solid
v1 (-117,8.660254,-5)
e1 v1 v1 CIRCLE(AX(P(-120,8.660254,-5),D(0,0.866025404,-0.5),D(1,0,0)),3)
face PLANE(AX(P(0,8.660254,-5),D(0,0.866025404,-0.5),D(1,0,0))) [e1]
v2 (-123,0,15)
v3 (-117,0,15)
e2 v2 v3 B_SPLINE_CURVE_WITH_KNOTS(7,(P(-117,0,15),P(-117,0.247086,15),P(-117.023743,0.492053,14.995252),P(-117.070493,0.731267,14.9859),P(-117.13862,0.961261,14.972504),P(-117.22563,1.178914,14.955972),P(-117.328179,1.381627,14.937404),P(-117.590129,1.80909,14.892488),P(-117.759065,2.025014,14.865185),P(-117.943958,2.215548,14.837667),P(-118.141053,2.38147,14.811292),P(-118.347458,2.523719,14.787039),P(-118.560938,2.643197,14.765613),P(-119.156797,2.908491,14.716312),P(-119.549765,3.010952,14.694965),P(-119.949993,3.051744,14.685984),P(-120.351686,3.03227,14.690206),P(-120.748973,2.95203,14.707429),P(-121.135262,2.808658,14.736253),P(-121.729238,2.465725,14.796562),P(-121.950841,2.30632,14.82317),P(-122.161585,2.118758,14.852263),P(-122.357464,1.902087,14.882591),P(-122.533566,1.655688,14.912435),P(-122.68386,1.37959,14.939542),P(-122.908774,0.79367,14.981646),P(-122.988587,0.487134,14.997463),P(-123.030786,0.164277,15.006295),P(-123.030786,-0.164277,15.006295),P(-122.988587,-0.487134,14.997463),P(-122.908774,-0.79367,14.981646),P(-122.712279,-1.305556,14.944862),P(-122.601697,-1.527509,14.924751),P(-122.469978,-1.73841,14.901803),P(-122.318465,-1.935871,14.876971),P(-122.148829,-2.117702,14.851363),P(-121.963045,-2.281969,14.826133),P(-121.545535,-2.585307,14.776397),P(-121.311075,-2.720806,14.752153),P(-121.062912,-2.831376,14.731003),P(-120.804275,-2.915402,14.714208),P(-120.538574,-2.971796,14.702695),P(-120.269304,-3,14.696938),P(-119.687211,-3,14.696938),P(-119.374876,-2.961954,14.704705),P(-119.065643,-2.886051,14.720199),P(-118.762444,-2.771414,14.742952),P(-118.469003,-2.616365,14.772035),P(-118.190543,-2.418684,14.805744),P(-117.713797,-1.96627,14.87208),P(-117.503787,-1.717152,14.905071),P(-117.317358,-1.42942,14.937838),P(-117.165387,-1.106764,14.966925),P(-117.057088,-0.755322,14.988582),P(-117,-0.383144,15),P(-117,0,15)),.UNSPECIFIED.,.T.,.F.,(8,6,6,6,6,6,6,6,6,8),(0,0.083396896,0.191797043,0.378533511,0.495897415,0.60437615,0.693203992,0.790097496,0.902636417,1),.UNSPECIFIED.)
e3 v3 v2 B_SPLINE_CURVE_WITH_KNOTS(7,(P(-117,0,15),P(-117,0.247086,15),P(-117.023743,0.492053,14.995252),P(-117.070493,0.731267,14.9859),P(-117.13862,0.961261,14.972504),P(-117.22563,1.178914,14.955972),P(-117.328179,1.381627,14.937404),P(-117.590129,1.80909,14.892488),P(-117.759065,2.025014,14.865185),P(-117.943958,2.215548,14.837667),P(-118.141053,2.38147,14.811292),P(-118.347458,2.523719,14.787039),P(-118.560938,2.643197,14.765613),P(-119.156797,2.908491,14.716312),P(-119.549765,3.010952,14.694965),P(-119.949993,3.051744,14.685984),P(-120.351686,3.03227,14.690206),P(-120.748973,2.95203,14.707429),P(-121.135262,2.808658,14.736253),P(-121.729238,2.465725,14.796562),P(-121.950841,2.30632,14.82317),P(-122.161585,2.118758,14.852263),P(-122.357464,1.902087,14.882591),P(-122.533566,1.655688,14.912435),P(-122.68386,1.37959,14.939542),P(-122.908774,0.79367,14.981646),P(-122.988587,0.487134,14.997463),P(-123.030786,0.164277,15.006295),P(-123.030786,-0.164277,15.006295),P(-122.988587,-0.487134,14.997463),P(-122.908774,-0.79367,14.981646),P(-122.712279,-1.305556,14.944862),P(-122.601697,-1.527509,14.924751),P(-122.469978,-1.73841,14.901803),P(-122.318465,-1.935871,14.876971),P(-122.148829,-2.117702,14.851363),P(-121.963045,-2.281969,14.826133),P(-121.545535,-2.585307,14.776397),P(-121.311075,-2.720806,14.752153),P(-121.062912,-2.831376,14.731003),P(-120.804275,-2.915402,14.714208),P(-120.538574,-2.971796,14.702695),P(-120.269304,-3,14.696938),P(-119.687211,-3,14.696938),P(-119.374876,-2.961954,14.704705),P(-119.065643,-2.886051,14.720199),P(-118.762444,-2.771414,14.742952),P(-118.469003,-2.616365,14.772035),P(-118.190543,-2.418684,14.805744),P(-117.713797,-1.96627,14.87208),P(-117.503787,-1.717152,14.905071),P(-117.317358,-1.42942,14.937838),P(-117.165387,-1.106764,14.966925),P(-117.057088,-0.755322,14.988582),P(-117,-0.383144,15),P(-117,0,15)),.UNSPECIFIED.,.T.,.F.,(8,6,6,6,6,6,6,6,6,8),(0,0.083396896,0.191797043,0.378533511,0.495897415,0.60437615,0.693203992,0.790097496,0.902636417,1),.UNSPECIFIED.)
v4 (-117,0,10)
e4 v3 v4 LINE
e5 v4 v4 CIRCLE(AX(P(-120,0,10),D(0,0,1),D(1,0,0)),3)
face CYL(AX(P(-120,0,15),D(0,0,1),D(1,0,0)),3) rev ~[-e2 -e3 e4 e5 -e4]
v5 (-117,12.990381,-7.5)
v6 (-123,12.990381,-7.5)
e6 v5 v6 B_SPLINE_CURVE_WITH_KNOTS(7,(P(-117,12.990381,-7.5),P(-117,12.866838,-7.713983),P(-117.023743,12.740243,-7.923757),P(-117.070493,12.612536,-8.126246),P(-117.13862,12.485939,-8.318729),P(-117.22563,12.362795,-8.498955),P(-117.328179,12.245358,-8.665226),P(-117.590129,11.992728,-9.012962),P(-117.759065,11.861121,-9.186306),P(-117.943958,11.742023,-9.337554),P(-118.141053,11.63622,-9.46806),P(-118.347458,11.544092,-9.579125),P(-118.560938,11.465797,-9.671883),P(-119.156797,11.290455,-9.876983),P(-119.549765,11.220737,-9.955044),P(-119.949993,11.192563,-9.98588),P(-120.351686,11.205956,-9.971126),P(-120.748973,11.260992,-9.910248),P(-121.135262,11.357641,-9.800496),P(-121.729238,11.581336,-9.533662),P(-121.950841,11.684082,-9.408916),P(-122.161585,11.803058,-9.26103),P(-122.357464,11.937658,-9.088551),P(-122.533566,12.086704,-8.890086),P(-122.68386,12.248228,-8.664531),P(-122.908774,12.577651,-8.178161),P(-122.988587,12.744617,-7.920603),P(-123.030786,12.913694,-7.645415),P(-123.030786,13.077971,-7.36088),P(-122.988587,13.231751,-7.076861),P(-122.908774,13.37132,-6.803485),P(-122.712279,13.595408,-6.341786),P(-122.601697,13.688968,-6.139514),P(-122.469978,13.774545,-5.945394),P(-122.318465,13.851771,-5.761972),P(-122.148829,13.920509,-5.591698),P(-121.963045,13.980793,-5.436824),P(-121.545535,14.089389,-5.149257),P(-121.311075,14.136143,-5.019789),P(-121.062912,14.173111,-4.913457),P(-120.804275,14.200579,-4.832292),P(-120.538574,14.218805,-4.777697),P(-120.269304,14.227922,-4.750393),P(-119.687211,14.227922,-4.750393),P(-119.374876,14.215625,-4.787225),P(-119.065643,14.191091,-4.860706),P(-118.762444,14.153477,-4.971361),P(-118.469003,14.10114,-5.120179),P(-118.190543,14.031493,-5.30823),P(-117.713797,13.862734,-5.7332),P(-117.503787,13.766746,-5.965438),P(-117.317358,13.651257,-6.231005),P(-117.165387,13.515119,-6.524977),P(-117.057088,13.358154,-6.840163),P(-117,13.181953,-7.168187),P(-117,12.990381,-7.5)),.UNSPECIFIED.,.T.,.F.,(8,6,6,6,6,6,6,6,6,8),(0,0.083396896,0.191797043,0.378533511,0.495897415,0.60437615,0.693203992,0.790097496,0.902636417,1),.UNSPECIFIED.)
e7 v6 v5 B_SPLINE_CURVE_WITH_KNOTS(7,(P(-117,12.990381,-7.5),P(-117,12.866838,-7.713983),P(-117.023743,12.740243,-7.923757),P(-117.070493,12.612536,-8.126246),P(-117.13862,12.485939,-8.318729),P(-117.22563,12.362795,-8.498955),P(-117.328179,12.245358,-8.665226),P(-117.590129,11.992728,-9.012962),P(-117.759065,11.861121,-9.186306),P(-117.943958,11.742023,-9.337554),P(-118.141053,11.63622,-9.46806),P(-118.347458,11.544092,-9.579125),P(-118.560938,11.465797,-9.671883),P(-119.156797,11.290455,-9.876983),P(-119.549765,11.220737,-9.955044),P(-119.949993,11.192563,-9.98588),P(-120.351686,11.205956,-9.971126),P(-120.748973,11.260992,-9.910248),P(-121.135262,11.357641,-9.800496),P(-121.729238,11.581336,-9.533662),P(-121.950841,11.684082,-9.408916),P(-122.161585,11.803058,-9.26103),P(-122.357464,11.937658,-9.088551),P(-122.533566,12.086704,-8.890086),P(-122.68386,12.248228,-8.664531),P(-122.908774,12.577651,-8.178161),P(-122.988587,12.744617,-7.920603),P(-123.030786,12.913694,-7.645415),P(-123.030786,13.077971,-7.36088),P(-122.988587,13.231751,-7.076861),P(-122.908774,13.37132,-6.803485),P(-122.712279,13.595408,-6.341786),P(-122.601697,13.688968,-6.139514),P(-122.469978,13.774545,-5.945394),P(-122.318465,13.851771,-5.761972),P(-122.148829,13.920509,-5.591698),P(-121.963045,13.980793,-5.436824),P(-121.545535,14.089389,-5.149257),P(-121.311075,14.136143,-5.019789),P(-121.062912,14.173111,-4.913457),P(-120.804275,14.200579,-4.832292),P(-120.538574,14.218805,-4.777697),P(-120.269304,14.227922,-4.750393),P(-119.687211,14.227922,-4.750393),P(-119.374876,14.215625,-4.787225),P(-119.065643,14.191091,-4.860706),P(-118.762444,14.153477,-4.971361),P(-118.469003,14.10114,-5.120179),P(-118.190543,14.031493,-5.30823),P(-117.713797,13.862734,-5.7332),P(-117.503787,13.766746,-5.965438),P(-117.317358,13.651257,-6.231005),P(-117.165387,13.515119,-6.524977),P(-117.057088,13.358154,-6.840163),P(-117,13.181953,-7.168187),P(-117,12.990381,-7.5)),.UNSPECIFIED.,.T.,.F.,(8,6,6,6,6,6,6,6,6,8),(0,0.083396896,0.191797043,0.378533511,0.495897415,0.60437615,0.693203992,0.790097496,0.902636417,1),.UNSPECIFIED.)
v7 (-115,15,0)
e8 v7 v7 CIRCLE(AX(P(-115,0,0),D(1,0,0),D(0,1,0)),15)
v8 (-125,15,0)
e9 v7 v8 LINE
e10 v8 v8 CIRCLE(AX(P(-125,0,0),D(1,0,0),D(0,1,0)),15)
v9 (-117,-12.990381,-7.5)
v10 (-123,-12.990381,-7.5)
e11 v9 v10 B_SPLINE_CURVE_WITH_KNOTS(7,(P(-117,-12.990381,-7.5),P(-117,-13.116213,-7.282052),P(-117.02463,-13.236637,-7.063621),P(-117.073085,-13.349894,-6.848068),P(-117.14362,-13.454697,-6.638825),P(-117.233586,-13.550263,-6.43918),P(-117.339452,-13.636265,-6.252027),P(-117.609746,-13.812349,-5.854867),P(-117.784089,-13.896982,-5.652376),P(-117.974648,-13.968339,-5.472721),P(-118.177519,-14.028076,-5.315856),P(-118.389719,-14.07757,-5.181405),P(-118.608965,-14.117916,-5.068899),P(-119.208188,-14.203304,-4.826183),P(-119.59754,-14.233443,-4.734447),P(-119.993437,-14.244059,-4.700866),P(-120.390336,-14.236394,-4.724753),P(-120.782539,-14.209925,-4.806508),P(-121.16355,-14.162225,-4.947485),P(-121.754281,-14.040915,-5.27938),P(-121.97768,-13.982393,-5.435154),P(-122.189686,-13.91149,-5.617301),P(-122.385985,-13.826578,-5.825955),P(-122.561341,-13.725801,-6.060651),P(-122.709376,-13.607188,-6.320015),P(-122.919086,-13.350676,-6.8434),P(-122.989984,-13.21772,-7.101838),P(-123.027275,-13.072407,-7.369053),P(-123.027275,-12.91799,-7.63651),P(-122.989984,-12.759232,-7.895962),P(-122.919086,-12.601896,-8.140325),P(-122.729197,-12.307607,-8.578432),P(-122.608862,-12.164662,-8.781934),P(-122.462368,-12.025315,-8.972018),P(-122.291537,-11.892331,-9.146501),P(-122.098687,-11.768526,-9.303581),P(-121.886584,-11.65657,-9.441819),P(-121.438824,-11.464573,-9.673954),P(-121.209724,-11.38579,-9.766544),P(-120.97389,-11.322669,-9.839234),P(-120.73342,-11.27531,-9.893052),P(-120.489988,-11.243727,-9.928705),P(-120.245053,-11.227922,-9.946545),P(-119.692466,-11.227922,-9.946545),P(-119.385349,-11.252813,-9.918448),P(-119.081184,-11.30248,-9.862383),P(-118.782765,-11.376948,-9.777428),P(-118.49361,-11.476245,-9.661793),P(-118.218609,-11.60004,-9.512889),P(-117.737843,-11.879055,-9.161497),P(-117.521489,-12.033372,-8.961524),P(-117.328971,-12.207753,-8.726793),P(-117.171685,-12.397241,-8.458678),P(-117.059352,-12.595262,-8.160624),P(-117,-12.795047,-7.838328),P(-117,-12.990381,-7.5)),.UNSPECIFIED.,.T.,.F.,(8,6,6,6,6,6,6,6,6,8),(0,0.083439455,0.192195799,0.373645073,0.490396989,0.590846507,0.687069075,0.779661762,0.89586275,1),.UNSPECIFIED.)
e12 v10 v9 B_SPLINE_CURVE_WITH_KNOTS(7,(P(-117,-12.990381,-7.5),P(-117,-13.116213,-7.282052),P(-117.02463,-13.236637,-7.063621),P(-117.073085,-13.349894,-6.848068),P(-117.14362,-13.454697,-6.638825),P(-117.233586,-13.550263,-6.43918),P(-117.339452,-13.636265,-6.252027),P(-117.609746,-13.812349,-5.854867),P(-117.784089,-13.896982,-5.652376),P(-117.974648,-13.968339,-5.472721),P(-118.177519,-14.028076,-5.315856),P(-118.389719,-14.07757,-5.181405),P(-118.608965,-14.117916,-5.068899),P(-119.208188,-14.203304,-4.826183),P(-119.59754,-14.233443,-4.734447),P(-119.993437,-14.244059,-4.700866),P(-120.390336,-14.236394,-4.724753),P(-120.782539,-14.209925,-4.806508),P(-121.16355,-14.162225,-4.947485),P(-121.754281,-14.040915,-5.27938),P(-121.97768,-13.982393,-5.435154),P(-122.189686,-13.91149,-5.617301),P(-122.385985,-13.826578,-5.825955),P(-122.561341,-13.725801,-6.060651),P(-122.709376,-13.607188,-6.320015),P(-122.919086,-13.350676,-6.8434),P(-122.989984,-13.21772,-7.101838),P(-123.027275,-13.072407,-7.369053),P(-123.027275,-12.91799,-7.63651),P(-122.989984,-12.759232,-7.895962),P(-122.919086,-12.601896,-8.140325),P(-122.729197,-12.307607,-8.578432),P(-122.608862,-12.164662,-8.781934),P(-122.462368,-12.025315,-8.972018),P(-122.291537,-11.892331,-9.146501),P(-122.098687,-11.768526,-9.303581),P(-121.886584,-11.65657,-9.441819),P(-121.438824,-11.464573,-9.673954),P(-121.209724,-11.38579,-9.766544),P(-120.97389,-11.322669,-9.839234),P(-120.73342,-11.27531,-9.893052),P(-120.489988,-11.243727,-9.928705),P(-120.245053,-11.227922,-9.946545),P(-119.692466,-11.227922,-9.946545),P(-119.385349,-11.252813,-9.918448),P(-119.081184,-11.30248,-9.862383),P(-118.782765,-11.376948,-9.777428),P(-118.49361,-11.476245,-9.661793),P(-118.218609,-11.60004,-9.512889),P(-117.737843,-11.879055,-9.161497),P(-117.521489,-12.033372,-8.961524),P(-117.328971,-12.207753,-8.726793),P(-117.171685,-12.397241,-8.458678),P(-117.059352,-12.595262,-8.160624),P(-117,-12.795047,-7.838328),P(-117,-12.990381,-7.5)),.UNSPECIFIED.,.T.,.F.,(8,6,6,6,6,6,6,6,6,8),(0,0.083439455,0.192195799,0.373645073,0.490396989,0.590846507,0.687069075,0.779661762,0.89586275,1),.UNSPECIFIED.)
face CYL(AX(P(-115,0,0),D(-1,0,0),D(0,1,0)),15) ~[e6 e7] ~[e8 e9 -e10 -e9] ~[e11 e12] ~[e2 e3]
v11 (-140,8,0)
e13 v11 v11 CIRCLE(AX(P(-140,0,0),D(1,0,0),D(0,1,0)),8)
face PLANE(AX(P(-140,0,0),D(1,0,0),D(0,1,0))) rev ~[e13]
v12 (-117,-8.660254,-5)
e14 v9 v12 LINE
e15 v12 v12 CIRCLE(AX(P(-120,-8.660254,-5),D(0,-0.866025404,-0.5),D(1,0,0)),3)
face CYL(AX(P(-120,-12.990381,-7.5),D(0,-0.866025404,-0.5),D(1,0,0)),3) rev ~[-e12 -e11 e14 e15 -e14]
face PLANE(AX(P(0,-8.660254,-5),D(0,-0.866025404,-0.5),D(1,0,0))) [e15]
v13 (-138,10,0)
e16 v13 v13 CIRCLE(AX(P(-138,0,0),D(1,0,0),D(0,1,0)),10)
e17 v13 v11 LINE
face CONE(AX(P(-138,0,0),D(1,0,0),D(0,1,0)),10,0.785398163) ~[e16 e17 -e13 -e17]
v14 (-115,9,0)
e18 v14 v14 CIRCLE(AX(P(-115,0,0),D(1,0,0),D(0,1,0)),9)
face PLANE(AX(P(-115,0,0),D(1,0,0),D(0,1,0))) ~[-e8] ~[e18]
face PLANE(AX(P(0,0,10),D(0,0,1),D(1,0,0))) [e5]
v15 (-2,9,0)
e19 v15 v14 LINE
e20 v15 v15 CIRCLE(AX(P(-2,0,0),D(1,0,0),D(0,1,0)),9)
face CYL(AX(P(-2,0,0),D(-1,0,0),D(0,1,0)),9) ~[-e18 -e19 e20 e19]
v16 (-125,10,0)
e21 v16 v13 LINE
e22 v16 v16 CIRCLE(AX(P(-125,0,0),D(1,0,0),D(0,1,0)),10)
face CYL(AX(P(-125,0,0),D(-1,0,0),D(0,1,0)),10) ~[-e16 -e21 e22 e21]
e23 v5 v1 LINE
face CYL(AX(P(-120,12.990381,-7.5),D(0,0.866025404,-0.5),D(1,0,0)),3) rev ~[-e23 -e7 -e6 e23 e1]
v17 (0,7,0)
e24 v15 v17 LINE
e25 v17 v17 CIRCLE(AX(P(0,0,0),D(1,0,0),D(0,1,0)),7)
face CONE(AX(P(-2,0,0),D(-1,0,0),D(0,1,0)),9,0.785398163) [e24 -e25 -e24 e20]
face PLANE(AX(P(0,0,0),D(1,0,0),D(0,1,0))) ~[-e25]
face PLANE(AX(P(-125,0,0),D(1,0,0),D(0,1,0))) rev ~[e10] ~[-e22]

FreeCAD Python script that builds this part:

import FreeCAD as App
import Part
import Sketcher


def add_polygon(sketch, points):
    """Adds a closed chain of lines whose ends are joined by coincident constraints."""
    first, n = sketch.GeometryCount, len(points)
    for a, b in zip(points, points[1:] + points[:1]):
        sketch.addGeometry(Part.LineSegment(App.Vector(*a, 0), App.Vector(*b, 0)), False)
    for i in range(n):
        sketch.addConstraint(Sketcher.Constraint("Coincident", first + i, 2, first + (i + 1) % n, 1))

doc = App.newDocument("Part")
params = doc.addObject("Spreadsheet::Sheet", "Params")
for row, (alias, value) in enumerate([
    ("sketch1_width", "140 mm"),
    ("sketch1_width2", "10 mm"),
    ("revolution_angle", "360 deg"),
    ("sketch2_diameter", "6 mm"),
    ("pocket1_length", "5 mm"),
], start=1):
    params.set(f"A{row}", alias)
    params.set(f"B{row}", "=" + value)
    params.setAlias(f"B{row}", alias)

body = doc.addObject("PartDesign::Body", "Body")

# Sketch on XY plane
sketch1 = body.newObject("Sketcher::SketchObject", "Sketch")
sketch1.AttachmentSupport = (doc.getObject("XY_Plane"), [""])
sketch1.MapMode = "FlatFace"
add_polygon(sketch1, [(-140, 0), (0, 0), (0, 7), (-2, 9), (-115, 9), (-115, 15), (-125, 15), (-125, 10), (-138, 10), (-140, 8)])  # lines 0-9
sketch1.addConstraint(Sketcher.Constraint("Horizontal", 0))
sketch1.addConstraint(Sketcher.Constraint("Vertical", 1))
sketch1.addConstraint(Sketcher.Constraint("Horizontal", 3))
sketch1.addConstraint(Sketcher.Constraint("Vertical", 4))
sketch1.addConstraint(Sketcher.Constraint("Horizontal", 5))
sketch1.addConstraint(Sketcher.Constraint("Vertical", 6))
sketch1.addConstraint(Sketcher.Constraint("Horizontal", 7))
sketch1.addConstraint(Sketcher.Constraint("Vertical", 9))
sketch1.addConstraint(Sketcher.Constraint("Coincident", 0, 2, -1, 1))
sketch1.addConstraint(Sketcher.Constraint("Perpendicular", 2, 8))
sketch1.addConstraint(Sketcher.Constraint("Equal", 2, 8))
sketch1.addConstraint(Sketcher.Constraint("DistanceX", 0, 1, 0, 2, 140.0))
sketch1.addConstraint(Sketcher.Constraint("DistanceX", 5, 2, 5, 1, 10.0))
sketch1.addConstraint(Sketcher.Constraint("DistanceX", 2, 2, -1, 1, 2.0))
sketch1.addConstraint(Sketcher.Constraint("DistanceY", -1, 1, 2, 2, 9.0))
sketch1.addConstraint(Sketcher.Constraint("DistanceY", -1, 1, 4, 2, 15.0))
sketch1.addConstraint(Sketcher.Constraint("DistanceY", -1, 1, 6, 2, 10.0))
sketch1.addConstraint(Sketcher.Constraint("DistanceY", 1, 2, 2, 2, 2.0))
sketch1.addConstraint(Sketcher.Constraint("DistanceX", 8, 2, 6, 2, 15.0))
sketch1.setExpression("Constraints[21]", "Params.sketch1_width")
sketch1.setExpression("Constraints[22]", "Params.sketch1_width2")
revolution = body.newObject("PartDesign::Revolution", "Revolution")
revolution.Profile = sketch1
revolution.ReferenceAxis = (sketch1, ["H_Axis"])
revolution.setExpression("Angle", "Params.revolution_angle")

# Sketch on XY plane
sketch2 = body.newObject("Sketcher::SketchObject", "Sketch001")
sketch2.AttachmentSupport = (doc.getObject("XY_Plane"), [""])
sketch2.MapMode = "FlatFace"
sketch2.AttachmentOffset = App.Placement(App.Vector(0, 0, 15), App.Rotation())
sketch2.addGeometry(Part.Circle(App.Vector(-120, 0, 0), App.Vector(0, 0, 1), 3), False)
sketch2.addConstraint(Sketcher.Constraint("PointOnObject", 0, 3, -1))
sketch2.addConstraint(Sketcher.Constraint("Diameter", 0, 6.0))
sketch2.addConstraint(Sketcher.Constraint("DistanceX", 0, 3, -1, 1, 120.0))
sketch2.setExpression("Constraints[1]", "Params.sketch2_diameter")
pocket1 = body.newObject("PartDesign::Pocket", "Pocket")
pocket1.Profile = sketch2
pocket1.setExpression("Length", "Params.pocket1_length")
doc.recompute()

polarpattern = body.newObject("PartDesign::PolarPattern", "PolarPattern")
polarpattern.Originals = [pocket1]
polarpattern.Axis = (doc.getObject("X_Axis"), [""])
polarpattern.Angle = 360
polarpattern.Occurrences = 3
body.Tip = polarpattern

doc.recompute()
